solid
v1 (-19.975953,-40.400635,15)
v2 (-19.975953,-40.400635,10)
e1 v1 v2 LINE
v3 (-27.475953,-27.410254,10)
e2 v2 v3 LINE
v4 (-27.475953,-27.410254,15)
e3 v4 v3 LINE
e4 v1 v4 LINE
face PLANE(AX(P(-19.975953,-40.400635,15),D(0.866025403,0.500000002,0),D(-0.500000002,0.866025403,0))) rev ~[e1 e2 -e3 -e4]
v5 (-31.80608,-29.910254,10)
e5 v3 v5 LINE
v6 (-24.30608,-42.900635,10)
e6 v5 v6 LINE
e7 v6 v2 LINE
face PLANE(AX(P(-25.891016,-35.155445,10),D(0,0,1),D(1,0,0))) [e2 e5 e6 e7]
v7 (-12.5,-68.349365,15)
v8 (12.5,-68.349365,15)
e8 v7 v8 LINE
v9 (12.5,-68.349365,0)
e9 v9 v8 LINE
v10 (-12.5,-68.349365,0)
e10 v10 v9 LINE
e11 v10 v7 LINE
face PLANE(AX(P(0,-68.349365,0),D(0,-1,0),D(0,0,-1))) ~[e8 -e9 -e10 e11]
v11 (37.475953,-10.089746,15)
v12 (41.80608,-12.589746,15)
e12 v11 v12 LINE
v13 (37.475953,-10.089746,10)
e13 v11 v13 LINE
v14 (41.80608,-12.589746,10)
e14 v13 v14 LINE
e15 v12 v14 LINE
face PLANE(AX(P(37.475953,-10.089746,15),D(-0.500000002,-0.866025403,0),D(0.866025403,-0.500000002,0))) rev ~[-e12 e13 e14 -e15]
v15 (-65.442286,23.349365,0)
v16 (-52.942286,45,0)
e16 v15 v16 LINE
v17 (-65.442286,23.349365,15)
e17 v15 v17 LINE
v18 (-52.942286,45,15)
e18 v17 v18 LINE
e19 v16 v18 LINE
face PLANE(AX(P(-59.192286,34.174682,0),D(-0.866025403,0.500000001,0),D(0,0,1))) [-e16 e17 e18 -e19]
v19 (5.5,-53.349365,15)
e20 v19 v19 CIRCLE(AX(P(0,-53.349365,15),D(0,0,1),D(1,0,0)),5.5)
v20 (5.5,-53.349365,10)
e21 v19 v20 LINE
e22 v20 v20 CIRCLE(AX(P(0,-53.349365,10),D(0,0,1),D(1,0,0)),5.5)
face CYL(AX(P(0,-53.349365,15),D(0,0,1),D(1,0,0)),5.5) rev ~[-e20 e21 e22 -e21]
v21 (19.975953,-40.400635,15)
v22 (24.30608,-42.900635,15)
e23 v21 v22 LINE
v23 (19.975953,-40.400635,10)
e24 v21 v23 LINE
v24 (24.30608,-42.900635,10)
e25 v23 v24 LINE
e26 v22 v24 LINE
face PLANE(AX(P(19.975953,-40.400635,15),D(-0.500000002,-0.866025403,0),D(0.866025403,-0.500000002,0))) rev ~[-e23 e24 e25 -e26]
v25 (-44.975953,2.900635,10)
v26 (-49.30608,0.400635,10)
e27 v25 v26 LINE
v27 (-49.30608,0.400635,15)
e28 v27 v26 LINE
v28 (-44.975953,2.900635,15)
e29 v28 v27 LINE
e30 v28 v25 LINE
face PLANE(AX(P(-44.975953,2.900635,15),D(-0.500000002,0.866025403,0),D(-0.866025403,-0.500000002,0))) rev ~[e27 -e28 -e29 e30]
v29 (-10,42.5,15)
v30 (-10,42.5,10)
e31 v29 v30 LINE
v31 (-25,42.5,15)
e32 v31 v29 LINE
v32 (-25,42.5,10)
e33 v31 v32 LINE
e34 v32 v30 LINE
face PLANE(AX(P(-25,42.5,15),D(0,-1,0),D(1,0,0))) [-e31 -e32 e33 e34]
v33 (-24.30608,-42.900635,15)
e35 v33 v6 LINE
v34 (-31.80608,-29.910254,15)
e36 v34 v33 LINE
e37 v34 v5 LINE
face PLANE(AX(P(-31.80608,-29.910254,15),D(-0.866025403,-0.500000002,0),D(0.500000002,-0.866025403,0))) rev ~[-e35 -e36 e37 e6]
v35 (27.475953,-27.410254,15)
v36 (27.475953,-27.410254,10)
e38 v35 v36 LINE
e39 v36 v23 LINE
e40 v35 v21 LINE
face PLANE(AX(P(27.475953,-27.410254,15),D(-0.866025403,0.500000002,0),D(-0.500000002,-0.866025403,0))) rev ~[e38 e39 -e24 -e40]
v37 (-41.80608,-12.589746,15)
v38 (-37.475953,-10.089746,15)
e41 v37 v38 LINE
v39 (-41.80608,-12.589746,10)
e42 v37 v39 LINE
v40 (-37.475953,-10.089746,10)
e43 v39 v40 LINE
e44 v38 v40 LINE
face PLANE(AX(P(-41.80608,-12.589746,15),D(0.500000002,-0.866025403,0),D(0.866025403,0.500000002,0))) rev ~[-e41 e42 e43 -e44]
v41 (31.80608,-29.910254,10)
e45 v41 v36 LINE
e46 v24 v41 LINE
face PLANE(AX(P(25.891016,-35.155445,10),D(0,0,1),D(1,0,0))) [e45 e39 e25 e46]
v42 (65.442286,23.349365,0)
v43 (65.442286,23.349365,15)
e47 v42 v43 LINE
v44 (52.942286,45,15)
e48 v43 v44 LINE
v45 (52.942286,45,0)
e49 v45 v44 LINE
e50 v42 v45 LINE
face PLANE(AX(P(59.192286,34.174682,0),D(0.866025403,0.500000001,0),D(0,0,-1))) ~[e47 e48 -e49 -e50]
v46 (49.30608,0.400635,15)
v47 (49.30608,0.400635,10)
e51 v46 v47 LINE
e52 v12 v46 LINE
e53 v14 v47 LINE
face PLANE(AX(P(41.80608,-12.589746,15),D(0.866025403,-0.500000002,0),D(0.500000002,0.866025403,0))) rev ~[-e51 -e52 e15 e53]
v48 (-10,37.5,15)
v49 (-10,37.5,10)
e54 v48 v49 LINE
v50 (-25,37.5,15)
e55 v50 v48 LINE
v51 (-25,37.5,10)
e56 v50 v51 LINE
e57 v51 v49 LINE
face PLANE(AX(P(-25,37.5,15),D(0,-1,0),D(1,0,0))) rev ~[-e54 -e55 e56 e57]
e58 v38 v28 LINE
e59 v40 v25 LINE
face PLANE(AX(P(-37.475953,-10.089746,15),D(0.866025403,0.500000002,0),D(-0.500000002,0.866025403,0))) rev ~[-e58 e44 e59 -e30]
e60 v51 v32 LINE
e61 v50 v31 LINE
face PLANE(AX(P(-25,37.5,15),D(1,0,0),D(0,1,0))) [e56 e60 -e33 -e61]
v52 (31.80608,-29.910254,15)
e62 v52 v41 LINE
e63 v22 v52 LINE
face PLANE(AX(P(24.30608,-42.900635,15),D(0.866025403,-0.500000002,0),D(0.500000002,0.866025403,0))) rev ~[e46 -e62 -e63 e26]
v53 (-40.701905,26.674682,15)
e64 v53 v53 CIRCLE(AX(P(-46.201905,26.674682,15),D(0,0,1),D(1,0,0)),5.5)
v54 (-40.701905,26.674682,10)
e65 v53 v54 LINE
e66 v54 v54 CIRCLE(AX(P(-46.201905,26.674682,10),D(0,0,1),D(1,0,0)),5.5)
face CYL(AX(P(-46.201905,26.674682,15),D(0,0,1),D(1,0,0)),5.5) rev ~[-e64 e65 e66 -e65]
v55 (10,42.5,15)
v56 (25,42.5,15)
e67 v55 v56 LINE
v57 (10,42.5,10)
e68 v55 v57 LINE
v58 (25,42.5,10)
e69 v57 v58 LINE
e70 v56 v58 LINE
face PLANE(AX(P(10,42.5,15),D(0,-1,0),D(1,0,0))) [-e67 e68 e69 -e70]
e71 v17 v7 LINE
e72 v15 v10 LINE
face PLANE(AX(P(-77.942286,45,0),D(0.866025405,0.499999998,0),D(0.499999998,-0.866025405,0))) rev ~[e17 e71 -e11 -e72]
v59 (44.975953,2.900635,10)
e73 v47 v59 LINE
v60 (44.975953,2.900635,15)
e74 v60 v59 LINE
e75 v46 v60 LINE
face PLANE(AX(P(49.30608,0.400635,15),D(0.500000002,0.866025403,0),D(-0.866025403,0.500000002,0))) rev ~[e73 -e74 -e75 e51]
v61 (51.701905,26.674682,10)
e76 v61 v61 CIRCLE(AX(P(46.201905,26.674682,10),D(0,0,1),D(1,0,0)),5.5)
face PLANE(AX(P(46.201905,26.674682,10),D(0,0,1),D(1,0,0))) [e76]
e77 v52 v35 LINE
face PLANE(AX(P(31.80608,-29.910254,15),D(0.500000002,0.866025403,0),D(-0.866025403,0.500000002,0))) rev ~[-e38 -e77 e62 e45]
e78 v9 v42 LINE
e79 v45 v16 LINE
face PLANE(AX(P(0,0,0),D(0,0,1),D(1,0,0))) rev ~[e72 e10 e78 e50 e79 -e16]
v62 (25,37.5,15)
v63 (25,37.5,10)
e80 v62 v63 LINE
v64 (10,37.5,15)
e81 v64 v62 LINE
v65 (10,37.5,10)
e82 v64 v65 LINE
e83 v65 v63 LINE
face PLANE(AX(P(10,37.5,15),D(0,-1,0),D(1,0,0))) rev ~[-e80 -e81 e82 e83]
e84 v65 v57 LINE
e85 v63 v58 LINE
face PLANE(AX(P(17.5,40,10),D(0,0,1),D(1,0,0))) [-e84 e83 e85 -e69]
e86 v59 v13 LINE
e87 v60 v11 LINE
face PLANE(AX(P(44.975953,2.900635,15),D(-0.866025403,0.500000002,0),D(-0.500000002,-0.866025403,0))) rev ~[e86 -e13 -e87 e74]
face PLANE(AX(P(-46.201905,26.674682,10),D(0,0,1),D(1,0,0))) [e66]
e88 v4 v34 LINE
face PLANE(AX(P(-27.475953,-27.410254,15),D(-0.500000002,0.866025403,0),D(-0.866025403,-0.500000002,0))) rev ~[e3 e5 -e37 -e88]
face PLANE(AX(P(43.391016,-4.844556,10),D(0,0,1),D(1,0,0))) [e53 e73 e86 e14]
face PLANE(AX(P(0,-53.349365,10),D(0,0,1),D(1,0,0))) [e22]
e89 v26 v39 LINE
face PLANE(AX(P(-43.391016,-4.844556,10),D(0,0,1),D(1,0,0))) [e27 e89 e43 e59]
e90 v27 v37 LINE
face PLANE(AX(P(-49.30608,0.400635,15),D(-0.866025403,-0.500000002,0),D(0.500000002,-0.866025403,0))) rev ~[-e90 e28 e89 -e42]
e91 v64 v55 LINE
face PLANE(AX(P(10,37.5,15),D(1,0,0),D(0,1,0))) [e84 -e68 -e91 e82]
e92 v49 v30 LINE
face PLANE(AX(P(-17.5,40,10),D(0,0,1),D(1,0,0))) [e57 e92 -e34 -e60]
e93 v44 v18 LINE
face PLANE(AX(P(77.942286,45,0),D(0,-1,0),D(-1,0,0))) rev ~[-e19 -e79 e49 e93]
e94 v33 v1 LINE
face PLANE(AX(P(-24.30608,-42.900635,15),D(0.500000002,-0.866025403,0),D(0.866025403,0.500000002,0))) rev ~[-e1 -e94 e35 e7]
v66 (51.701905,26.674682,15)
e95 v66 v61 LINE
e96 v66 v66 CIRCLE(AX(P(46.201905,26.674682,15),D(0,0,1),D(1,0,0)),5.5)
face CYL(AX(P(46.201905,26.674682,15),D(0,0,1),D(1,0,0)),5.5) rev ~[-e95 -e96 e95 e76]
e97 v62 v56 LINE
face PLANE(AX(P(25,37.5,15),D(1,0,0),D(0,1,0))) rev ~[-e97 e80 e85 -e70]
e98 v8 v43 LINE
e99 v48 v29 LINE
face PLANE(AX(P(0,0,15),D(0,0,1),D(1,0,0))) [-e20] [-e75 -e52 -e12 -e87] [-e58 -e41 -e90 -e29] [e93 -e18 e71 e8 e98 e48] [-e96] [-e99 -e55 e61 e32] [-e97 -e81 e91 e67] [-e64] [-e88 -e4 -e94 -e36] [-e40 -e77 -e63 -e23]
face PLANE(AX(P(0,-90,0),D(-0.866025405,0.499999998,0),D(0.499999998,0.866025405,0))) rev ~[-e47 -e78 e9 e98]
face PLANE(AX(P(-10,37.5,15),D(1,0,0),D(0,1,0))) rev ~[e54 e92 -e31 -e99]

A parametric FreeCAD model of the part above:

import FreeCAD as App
import Part
import Sketcher

V = App.Vector
Q = App.Units.Quantity


def edges_at(feature, points):
    """Names of the edges that pass closest to the given points."""
    edges = feature.Shape.Edges
    near = lambda p: min(range(len(edges)), key=lambda i: edges[i].distToShape(Part.Vertex(*p))[0])
    return sorted({f"Edge{near(p) + 1}" for p in points})


def add_polygon(sketch, points):
    """Adds a closed chain of lines whose ends are joined by coincident constraints."""
    first, n = sketch.GeometryCount, len(points)
    for a, b in zip(points, points[1:] + points[:1]):
        sketch.addGeometry(Part.LineSegment(App.Vector(*a, 0), App.Vector(*b, 0)), False)
    for i in range(n):
        sketch.addConstraint(Sketcher.Constraint("Coincident", first + i, 2, first + (i + 1) % n, 1))

doc = App.newDocument("Part")
body = doc.addObject("PartDesign::Body", "Body")

# Sketch on XY plane
sketch1 = doc.addObject("Sketcher::SketchObject", "Sketch")
body.addObject(sketch1)
sketch1.AttachmentSupport = (doc.XY_Plane, [""])
sketch1.MapMode = "FlatFace"
add_polygon(sketch1, [(-78, 45), (0, -90), (78, 45)])  # lines 0-2
sketch1.addConstraint([
    Sketcher.Constraint("Horizontal", 2),
    Sketcher.Constraint("PointOnObject", 0, 2, -2),
    Sketcher.Constraint("Equal", 0, 1),
    Sketcher.Constraint("Angle", 0, Q("-60 deg")),
    Sketcher.Constraint("DistanceY", 0, 2, -1, 1, 90.0),
    Sketcher.Constraint("DistanceY", -1, 1, 1, 2, 45.0),
])
pad1 = doc.addObject("PartDesign::Pad", "Pad")
body.addObject(pad1)
pad1.Profile = sketch1
pad1.Length = 15
doc.recompute()

chamfer = doc.addObject("PartDesign::Chamfer", "Chamfer")
body.addObject(chamfer)
chamfer.Base = (pad1, edges_at(pad1, [(0, -90, 7.5), (77.942, 45, 7.5), (-77.942, 45, 7.5)]))
chamfer.Size = 25

# Sketch on XY plane
sketch2 = doc.addObject("Sketcher::SketchObject", "Sketch001")
body.addObject(sketch2)
sketch2.AttachmentSupport = (doc.XY_Plane, [""])
sketch2.MapMode = "FlatFace"
sketch2.AttachmentOffset = App.Placement(V(0, 0, 15), App.Rotation())
add_polygon(sketch2, [(-25, 42.5), (-25, 37.5), (-10, 37.5), (-10, 42.5)])  # lines 0-3
add_polygon(sketch2, [(10, 42.5), (10, 37.5), (25, 37.5), (25, 42.5)])  # lines 4-7
add_polygon(sketch2, [(41.8, -12.6), (49.3, 0.4), (45, 2.9), (37.5, -10.1)])  # lines 8-11
add_polygon(sketch2, [(31.8, -29.9), (27.5, -27.4), (20, -40.4), (24.3, -42.9)])  # lines 12-15
add_polygon(sketch2, [(-31.8, -29.9), (-24.3, -42.9), (-20, -40.4), (-27.5, -27.4)])  # lines 16-19
add_polygon(sketch2, [(-41.8, -12.6), (-37.5, -10.1), (-45, 2.9), (-49.3, 0.4)])  # lines 20-23
sketch2.addConstraint([
    Sketcher.Constraint("Vertical", 0),
    Sketcher.Constraint("Horizontal", 1),
    Sketcher.Constraint("Vertical", 2),
    Sketcher.Constraint("Horizontal", 3),
    Sketcher.Constraint("Vertical", 4),
    Sketcher.Constraint("Horizontal", 5),
    Sketcher.Constraint("Vertical", 6),
    Sketcher.Constraint("Horizontal", 7),
    Sketcher.Constraint("Symmetric", 1, 2, 4, 2, -2),
    Sketcher.Constraint("Symmetric", 3, 2, 6, 2, -2),
    Sketcher.Constraint("Symmetric", 14, 2, 16, 2, -2),
    Sketcher.Constraint("Symmetric", 13, 2, 17, 2, -2),
    Sketcher.Constraint("Symmetric", 12, 2, 18, 2, -2),
    Sketcher.Constraint("Symmetric", 15, 2, 19, 2, -2),
    Sketcher.Constraint("Symmetric", 10, 2, 20, 2, -2),
    Sketcher.Constraint("Symmetric", 9, 2, 21, 2, -2),
    Sketcher.Constraint("Symmetric", 8, 2, 22, 2, -2),
    Sketcher.Constraint("Symmetric", 11, 2, 23, 2, -2),
    Sketcher.Constraint("Perpendicular", 8, 9),
    Sketcher.Constraint("Perpendicular", 9, 10),
    Sketcher.Constraint("Perpendicular", 10, 11),
    Sketcher.Constraint("Parallel", 11, 12),
    Sketcher.Constraint("Perpendicular", 12, 13),
    Sketcher.Constraint("Perpendicular", 13, 14),
    Sketcher.Constraint("Perpendicular", 14, 15),
    Sketcher.Constraint("Equal", 11, 12),
    Sketcher.Constraint("Equal", 10, 13),
    Sketcher.Constraint("DistanceX", 1, 1, 1, 2, 15.0),
    Sketcher.Constraint("DistanceY", 0, 2, 0, 1, 5.0),
    Sketcher.Constraint("Angle", 8, Q("60 deg")),
    Sketcher.Constraint("Distance", 8, 15.0),
    Sketcher.Constraint("Distance", 9, 5.0),
    Sketcher.Constraint("DistanceX", 0, 2, -1, 1, 25.0),
    Sketcher.Constraint("DistanceX", 12, 2, 10, 2, 10.0),
    Sketcher.Constraint("DistanceY", -1, 1, 0, 2, 37.5),
    Sketcher.Constraint("DistanceX", -1, 1, 8, 2, 49.30608),
    Sketcher.Constraint("DistanceY", 12, 2, 9, 2, 30.310889),
    Sketcher.Constraint("DistanceY", -1, 1, 8, 2, 0.400635),
])
pocket1 = doc.addObject("PartDesign::Pocket", "Pocket")
body.addObject(pocket1)
pocket1.Profile = sketch2
pocket1.Length = 5

# Sketch on XY plane
sketch3 = doc.addObject("Sketcher::SketchObject", "Sketch002")
body.addObject(sketch3)
sketch3.AttachmentSupport = (doc.XY_Plane, [""])
sketch3.MapMode = "FlatFace"
sketch3.AttachmentOffset = App.Placement(V(0, 0, 15), App.Rotation())
sketch3.addGeometry([
    Part.Circle(V(0, -53, 0), V(0, 0, 1), 6),
    Part.Circle(V(-46, 27, 0), V(0, 0, 1), 6),
    Part.Circle(V(46, 27, 0), V(0, 0, 1), 6),
], False)
sketch3.addConstraint([
    Sketcher.Constraint("Equal", 0, 1),
    Sketcher.Constraint("Equal", 1, 2),
    Sketcher.Constraint("Symmetric", 1, 3, 2, 3, -2),
    Sketcher.Constraint("PointOnObject", 0, 3, -2),
    Sketcher.Constraint("Diameter", 0, 11.0),
    Sketcher.Constraint("DistanceX", 1, 3, 2, 3, 92.40381),
    Sketcher.Constraint("DistanceY", 0, 3, -1, 1, 53.349365),
    Sketcher.Constraint("DistanceY", -1, 1, 1, 3, 26.674682),
])
pocket2 = doc.addObject("PartDesign::Pocket", "Pocket001")
body.addObject(pocket2)
pocket2.Profile = sketch3
pocket2.Length = 5

doc.recompute()
